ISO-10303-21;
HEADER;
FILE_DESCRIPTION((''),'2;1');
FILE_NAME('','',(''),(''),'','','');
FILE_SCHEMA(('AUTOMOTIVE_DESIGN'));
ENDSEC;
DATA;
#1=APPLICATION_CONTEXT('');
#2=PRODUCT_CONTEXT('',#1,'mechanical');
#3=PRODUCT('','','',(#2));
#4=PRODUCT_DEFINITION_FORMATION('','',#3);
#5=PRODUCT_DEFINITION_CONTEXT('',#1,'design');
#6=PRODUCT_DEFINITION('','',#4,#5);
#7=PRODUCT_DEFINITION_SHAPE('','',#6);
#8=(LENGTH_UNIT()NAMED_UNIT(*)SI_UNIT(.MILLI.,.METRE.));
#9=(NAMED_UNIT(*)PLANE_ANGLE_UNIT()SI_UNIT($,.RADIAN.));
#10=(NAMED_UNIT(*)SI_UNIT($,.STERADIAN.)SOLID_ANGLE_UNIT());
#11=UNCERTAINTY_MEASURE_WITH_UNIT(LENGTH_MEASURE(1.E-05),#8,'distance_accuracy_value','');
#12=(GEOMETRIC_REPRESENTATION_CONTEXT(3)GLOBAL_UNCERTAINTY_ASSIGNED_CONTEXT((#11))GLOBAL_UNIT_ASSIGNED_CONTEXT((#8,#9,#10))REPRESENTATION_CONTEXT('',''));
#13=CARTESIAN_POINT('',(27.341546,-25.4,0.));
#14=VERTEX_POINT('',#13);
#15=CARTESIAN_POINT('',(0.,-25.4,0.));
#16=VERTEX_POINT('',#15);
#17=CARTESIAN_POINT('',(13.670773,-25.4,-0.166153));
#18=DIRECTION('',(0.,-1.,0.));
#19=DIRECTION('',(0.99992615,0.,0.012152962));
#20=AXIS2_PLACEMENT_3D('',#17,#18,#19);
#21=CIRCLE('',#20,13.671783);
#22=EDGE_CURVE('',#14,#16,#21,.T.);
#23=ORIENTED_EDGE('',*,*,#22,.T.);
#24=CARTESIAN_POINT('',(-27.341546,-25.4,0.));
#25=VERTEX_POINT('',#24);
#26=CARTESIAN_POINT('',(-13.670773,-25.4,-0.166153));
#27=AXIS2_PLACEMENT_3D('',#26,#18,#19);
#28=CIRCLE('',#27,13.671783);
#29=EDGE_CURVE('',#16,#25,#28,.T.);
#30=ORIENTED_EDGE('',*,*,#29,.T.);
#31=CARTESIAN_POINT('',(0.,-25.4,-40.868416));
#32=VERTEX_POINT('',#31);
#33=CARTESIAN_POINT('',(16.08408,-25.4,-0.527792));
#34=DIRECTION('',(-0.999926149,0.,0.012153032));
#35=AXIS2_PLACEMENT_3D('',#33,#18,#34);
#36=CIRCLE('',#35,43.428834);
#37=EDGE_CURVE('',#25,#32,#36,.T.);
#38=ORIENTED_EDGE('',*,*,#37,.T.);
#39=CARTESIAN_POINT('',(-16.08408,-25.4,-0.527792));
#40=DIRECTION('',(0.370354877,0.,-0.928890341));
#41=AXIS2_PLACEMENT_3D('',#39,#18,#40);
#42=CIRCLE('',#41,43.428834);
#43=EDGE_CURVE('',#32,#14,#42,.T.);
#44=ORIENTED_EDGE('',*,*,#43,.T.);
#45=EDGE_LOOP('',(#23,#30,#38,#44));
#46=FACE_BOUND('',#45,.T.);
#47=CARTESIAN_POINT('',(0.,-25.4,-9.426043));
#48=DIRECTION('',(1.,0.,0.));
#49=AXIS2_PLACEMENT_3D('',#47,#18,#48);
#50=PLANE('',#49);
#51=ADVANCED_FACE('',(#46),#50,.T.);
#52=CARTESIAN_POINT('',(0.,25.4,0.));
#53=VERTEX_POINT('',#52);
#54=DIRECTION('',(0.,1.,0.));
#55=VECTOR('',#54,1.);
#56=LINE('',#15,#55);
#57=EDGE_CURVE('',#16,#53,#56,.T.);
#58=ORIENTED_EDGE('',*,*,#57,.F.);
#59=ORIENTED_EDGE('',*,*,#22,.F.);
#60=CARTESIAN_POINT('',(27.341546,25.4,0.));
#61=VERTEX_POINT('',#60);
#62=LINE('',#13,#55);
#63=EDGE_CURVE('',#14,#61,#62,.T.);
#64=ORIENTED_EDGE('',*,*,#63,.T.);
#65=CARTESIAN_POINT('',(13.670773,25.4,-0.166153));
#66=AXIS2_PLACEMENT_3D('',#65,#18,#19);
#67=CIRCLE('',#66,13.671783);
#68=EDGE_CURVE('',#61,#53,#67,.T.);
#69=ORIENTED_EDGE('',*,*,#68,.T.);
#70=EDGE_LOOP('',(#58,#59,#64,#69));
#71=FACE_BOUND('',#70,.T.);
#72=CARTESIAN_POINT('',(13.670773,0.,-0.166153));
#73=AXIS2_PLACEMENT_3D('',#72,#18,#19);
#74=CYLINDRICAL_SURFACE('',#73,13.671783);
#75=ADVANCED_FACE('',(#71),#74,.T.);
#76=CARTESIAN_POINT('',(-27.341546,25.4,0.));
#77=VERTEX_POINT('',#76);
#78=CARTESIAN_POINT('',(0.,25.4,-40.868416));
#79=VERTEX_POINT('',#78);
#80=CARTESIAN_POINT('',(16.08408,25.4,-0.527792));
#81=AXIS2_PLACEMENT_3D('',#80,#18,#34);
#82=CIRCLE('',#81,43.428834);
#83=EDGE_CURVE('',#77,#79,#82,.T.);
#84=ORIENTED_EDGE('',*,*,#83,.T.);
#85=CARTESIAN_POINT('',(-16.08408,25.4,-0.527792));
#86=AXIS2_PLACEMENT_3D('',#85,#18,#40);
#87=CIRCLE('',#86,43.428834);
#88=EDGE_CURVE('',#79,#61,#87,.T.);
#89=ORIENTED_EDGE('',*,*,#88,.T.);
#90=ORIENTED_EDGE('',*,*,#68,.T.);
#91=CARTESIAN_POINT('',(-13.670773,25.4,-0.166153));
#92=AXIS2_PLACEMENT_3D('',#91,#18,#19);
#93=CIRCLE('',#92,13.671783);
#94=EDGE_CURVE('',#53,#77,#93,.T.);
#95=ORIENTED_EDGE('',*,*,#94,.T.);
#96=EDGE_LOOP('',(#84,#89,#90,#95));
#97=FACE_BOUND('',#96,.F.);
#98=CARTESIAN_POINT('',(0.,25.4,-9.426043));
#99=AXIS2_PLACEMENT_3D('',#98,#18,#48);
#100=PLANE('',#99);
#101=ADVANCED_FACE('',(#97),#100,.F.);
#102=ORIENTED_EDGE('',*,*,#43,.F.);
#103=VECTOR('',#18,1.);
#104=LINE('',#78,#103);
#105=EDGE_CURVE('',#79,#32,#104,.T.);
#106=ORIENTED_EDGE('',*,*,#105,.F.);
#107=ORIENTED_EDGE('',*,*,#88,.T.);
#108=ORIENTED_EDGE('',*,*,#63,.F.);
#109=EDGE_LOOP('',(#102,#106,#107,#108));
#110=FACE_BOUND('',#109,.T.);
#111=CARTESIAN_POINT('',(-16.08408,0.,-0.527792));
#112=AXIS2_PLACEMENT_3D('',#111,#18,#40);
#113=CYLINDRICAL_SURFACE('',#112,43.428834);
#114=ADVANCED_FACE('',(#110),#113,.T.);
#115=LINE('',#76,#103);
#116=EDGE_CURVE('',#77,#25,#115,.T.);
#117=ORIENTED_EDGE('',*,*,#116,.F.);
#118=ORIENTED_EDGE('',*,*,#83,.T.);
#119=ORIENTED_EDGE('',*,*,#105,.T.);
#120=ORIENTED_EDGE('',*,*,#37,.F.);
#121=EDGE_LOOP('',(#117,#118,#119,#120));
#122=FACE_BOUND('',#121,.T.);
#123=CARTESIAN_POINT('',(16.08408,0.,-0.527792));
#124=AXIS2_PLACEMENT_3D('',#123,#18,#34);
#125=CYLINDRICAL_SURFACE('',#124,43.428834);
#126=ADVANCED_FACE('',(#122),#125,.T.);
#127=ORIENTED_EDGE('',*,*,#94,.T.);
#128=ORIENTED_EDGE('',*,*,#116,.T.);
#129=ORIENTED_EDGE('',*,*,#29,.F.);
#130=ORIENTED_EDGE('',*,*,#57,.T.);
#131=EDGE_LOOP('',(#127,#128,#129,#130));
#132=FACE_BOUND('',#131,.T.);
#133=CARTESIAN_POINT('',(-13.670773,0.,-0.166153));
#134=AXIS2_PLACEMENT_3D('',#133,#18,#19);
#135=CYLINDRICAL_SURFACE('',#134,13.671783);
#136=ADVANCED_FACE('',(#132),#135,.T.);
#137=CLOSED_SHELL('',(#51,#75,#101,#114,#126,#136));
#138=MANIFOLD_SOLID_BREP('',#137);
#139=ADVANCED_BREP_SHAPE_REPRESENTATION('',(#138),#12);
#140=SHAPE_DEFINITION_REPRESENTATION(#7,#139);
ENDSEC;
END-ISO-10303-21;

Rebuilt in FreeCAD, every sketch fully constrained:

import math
import FreeCAD as App
import Part
import Sketcher

V = App.Vector
Q = App.Units.Quantity

doc = App.newDocument("Part")
body = doc.addObject("PartDesign::Body", "Body")

sketch1 = doc.addObject("Sketcher::SketchObject", "Sketch")
body.addObject(sketch1)
sketch1.AttachmentSupport = (doc.XZ_Plane, [""])
sketch1.MapMode = "FlatFace"
sketch1.addGeometry([
    Part.ArcOfCircle(Part.Circle(V(-13.670773, -0.166153, 0), V(0, 0, 1), 13.671783), math.radians(0.696331), math.radians(179.303669)),
    Part.ArcOfCircle(Part.Circle(V(16.08408, -0.527792, 0), V(0, 0, 1), 43.428834), math.radians(179.303665), math.radians(248.262495)),
    Part.ArcOfCircle(Part.Circle(V(-16.08408, -0.527792, 0), V(0, 0, 1), 43.428834), math.radians(-68.262495), math.radians(0.696335)),
    Part.ArcOfCircle(Part.Circle(V(13.670773, -0.166153, 0), V(0, 0, 1), 13.671783), math.radians(0.696331), math.radians(179.303669)),
], False)
sketch1.addConstraint([
    Sketcher.Constraint("Coincident", 0, 2, 1, 1),
    Sketcher.Constraint("Coincident", 1, 2, 2, 1),
    Sketcher.Constraint("Coincident", 2, 2, 3, 1),
    Sketcher.Constraint("Coincident", 3, 2, 0, 1),
    Sketcher.Constraint("Coincident", 3, 2, -1, 1),
    Sketcher.Constraint("PointOnObject", 0, 2, -1),
    Sketcher.Constraint("PointOnObject", 1, 2, -2),
    Sketcher.Constraint("PointOnObject", 2, 2, -1),
    Sketcher.Constraint("Radius", 0, Q("13.671783 mm")),
    Sketcher.Constraint("Radius", 1, Q("43.428834 mm")),
    Sketcher.Constraint("Radius", 2, Q("43.428834 mm")),
    Sketcher.Constraint("Radius", 3, Q("13.671783 mm")),
    Sketcher.Constraint("DistanceX", -1, 1, 1, 3, Q("16.08408 mm")),
    Sketcher.Constraint("DistanceX", 2, 3, -1, 1, Q("16.08408 mm")),
    Sketcher.Constraint("DistanceY", 1, 3, 0, 3, Q("0.361639 mm")),
])
pad1 = doc.addObject("PartDesign::Pad", "Pad")
body.addObject(pad1)
pad1.Profile = sketch1
pad1.Type = "TwoLengths"
pad1.Length = Q("1 in")
pad1.Length2 = Q("1 in")

doc.recompute()
